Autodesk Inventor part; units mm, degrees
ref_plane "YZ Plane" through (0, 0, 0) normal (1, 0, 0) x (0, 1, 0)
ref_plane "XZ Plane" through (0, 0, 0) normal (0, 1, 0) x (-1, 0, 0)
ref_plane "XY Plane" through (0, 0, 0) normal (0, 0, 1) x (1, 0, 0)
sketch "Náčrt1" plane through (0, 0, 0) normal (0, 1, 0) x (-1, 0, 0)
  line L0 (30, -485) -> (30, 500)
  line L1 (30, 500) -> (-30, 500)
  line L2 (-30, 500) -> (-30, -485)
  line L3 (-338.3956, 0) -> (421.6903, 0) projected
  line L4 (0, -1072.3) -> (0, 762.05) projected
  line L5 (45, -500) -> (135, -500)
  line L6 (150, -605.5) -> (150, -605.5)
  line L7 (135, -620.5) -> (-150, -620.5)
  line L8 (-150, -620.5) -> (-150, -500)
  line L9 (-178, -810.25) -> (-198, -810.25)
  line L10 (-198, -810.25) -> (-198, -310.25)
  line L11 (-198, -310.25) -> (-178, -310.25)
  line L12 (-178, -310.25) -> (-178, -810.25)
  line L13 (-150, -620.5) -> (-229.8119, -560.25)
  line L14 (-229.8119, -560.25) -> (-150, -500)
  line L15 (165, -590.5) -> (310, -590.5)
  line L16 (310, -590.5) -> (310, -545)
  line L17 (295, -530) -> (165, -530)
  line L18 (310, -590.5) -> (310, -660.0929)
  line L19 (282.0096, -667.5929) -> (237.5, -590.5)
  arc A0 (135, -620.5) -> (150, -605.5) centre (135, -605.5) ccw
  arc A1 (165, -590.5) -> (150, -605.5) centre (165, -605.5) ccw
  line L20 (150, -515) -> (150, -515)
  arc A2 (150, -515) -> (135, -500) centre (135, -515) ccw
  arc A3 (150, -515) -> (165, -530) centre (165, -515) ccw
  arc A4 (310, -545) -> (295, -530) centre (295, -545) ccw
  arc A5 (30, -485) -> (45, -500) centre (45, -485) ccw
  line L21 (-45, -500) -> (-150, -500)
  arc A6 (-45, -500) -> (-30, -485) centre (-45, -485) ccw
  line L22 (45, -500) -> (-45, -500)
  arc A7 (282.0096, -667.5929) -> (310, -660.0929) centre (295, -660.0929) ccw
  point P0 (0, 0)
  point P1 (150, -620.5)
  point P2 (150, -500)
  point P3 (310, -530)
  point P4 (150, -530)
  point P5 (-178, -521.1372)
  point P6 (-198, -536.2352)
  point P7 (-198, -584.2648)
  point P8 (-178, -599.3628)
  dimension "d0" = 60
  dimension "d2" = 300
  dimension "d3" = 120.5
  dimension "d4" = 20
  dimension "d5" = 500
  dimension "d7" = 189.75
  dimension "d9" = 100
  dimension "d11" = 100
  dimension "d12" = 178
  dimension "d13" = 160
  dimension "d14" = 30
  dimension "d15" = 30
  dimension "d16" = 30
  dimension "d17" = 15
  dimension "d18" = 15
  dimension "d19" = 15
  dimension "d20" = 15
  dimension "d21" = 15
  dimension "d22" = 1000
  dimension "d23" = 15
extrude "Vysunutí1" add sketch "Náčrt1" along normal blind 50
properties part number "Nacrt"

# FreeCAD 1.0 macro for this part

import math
import FreeCAD as App
import Part
import Sketcher
Q = App.Units.Quantity

doc = App.newDocument("Part")
body = doc.addObject("PartDesign::Body", "Body")

sketch1 = body.newObject("Sketcher::SketchObject", "Sketch")
sketch1.AttachmentSupport = (doc.getObject("XZ_Plane"), [""])
sketch1.MapMode = "FlatFace"
sketch1.addGeometry([
    Part.ArcOfCircle(Part.Circle(App.Vector(-45, -485, 0), App.Vector(0, 0, 1), 15), math.radians(-90), math.radians(0)),
    Part.LineSegment(App.Vector(-30, -485, 0), App.Vector(-30, 500, 0)),
    Part.LineSegment(App.Vector(-30, 500, 0), App.Vector(30, 500, 0)),
    Part.LineSegment(App.Vector(30, 500, 0), App.Vector(30, -485, 0)),
    Part.ArcOfCircle(Part.Circle(App.Vector(45, -485, 0), App.Vector(0, 0, 1), 15), math.radians(180), math.radians(270)),
    Part.LineSegment(App.Vector(45, -500, 0), App.Vector(150, -500, 0)),
    Part.LineSegment(App.Vector(150, -500, 0), App.Vector(178, -521, 0)),
    Part.LineSegment(App.Vector(178, -521, 0), App.Vector(178, -310, 0)),
    Part.LineSegment(App.Vector(178, -310, 0), App.Vector(198, -310, 0)),
    Part.LineSegment(App.Vector(198, -310, 0), App.Vector(198, -536, 0)),
    Part.LineSegment(App.Vector(198, -536, 0), App.Vector(230, -560, 0)),
    Part.LineSegment(App.Vector(230, -560, 0), App.Vector(198, -584, 0)),
    Part.LineSegment(App.Vector(198, -584, 0), App.Vector(198, -810, 0)),
    Part.LineSegment(App.Vector(198, -810, 0), App.Vector(178, -810, 0)),
    Part.LineSegment(App.Vector(178, -810, 0), App.Vector(178, -599, 0)),
    Part.LineSegment(App.Vector(178, -599, 0), App.Vector(150, -620, 0)),
    Part.LineSegment(App.Vector(150, -620, 0), App.Vector(-135, -620, 0)),
    Part.ArcOfCircle(Part.Circle(App.Vector(-135, -606, 0), App.Vector(0, 0, 1), 15), math.radians(180), math.radians(270)),
    Part.ArcOfCircle(Part.Circle(App.Vector(-165, -606, 0), App.Vector(0, 0, 1), 15), math.radians(0), math.radians(90)),
    Part.LineSegment(App.Vector(-165, -590, 0), App.Vector(-238, -590, 0)),
    Part.LineSegment(App.Vector(-238, -590, 0), App.Vector(-282, -668, 0)),
    Part.ArcOfCircle(Part.Circle(App.Vector(-295, -660, 0), App.Vector(0, 0, 1), 15), math.radians(180), math.radians(330)),
    Part.LineSegment(App.Vector(-310, -660, 0), App.Vector(-310, -545, 0)),
    Part.ArcOfCircle(Part.Circle(App.Vector(-295, -545, 0), App.Vector(0, 0, 1), 15), math.radians(90), math.radians(180)),
    Part.LineSegment(App.Vector(-295, -530, 0), App.Vector(-165, -530, 0)),
    Part.ArcOfCircle(Part.Circle(App.Vector(-165, -515, 0), App.Vector(0, 0, 1), 15), math.radians(-90), math.radians(0)),
    Part.ArcOfCircle(Part.Circle(App.Vector(-135, -515, 0), App.Vector(0, 0, 1), 15), math.radians(90), math.radians(180)),
    Part.LineSegment(App.Vector(-135, -500, 0), App.Vector(-45, -500, 0)),
], False)
sketch1.addConstraint([
    Sketcher.Constraint("Tangent", 0, 2, 1, 1),
    Sketcher.Constraint("Coincident", 1, 2, 2, 1),
    Sketcher.Constraint("Coincident", 2, 2, 3, 1),
    Sketcher.Constraint("Tangent", 3, 2, 4, 1),
    Sketcher.Constraint("Tangent", 4, 2, 5, 1),
    Sketcher.Constraint("Coincident", 5, 2, 6, 1),
    Sketcher.Constraint("Coincident", 6, 2, 7, 1),
    Sketcher.Constraint("Coincident", 7, 2, 8, 1),
    Sketcher.Constraint("Coincident", 8, 2, 9, 1),
    Sketcher.Constraint("Coincident", 9, 2, 10, 1),
    Sketcher.Constraint("Coincident", 10, 2, 11, 1),
    Sketcher.Constraint("Coincident", 11, 2, 12, 1),
    Sketcher.Constraint("Coincident", 12, 2, 13, 1),
    Sketcher.Constraint("Coincident", 13, 2, 14, 1),
    Sketcher.Constraint("Coincident", 14, 2, 15, 1),
    Sketcher.Constraint("Coincident", 15, 2, 16, 1),
    Sketcher.Constraint("Tangent", 16, 2, 17, 2),
    Sketcher.Constraint("Tangent", 17, 1, 18, 1),
    Sketcher.Constraint("Tangent", 18, 2, 19, 1),
    Sketcher.Constraint("Coincident", 19, 2, 20, 1),
    Sketcher.Constraint("Tangent", 20, 2, 21, 2),
    Sketcher.Constraint("Tangent", 21, 1, 22, 1),
    Sketcher.Constraint("Tangent", 22, 2, 23, 2),
    Sketcher.Constraint("Tangent", 23, 1, 24, 1),
    Sketcher.Constraint("Tangent", 24, 2, 25, 1),
    Sketcher.Constraint("Tangent", 25, 2, 26, 2),
    Sketcher.Constraint("Tangent", 26, 1, 27, 1),
    Sketcher.Constraint("Tangent", 27, 2, 0, 1),
    Sketcher.Constraint("Vertical", 1),
    Sketcher.Constraint("Horizontal", 2),
    Sketcher.Constraint("Vertical", 3),
    Sketcher.Constraint("Horizontal", 5),
    Sketcher.Constraint("Vertical", 7),
    Sketcher.Constraint("Horizontal", 8),
    Sketcher.Constraint("Vertical", 9),
    Sketcher.Constraint("Vertical", 12),
    Sketcher.Constraint("Horizontal", 13),
    Sketcher.Constraint("Vertical", 14),
    Sketcher.Constraint("Horizontal", 16),
    Sketcher.Constraint("Horizontal", 19),
    Sketcher.Constraint("Vertical", 22),
    Sketcher.Constraint("Horizontal", 24),
    Sketcher.Constraint("Horizontal", 27),
    Sketcher.Constraint("Equal", 0, 4),
    Sketcher.Constraint("Equal", 4, 17),
    Sketcher.Constraint("Equal", 17, 18),
    Sketcher.Constraint("Equal", 18, 21),
    Sketcher.Constraint("Equal", 21, 23),
    Sketcher.Constraint("Equal", 23, 25),
    Sketcher.Constraint("Equal", 25, 26),
    Sketcher.Constraint("Symmetric", 0, 3, 4, 3, -2),
    Sketcher.Constraint("Parallel", 6, 10),
    Sketcher.Constraint("Parallel", 11, 15),
    Sketcher.Constraint("Horizontal", 17, 3, 18, 3),
    Sketcher.Constraint("Horizontal", 25, 3, 26, 3),
    Sketcher.Constraint("Vertical", 18, 3, 25, 3),
    Sketcher.Constraint("Vertical", 9, 2, 11, 2),
    Sketcher.Constraint("Vertical", 7, 2, 13, 2),
    Sketcher.Constraint("Vertical", 5, 2, 15, 2),
    Sketcher.Constraint("Equal", 9, 12),
    Sketcher.Constraint("Equal", 7, 14),
    Sketcher.Constraint("Equal", 10, 11),
    Sketcher.Constraint("Radius", 0, 15.0),
    Sketcher.Constraint("DistanceX", 2, 1, 2, 2, 60.0),
    Sketcher.Constraint("DistanceX", 8, 1, 8, 2, 20.0),
    Sketcher.Constraint("DistanceY", -1, 1, 1, 2, 500.0),
    Sketcher.Constraint("DistanceY", 4, 2, -1, 1, 500.0),
    Sketcher.Constraint("DistanceX", -1, 1, 6, 2, 178.0),
    Sketcher.Constraint("DistanceX", 21, 3, 17, 3, 160.0),
    Sketcher.Constraint("DistanceY", 17, 3, 0, 3, 120.5),
    Sketcher.Constraint("DistanceX", 5, 1, 5, 2, 105.0),
    Sketcher.Constraint("DistanceX", 16, 2, 16, 1, 285.0),
    Sketcher.Constraint("Angle", 20, Q("-120 deg")),
    Sketcher.Constraint("DistanceY", 5, 2, 7, 2, 189.75),
    Sketcher.Constraint("DistanceX", 19, 2, 19, 1, 72.5),
    Sketcher.Constraint("Angle", 6, Q("-37.0492 deg")),
    Sketcher.Constraint("DistanceY", 9, 2, 9, 1, 225.9852),
])
pad1 = body.newObject("PartDesign::Pad", "Pad")
pad1.Profile = sketch1
pad1.Length = 50
pad1.Reversed = True

doc.recompute()
